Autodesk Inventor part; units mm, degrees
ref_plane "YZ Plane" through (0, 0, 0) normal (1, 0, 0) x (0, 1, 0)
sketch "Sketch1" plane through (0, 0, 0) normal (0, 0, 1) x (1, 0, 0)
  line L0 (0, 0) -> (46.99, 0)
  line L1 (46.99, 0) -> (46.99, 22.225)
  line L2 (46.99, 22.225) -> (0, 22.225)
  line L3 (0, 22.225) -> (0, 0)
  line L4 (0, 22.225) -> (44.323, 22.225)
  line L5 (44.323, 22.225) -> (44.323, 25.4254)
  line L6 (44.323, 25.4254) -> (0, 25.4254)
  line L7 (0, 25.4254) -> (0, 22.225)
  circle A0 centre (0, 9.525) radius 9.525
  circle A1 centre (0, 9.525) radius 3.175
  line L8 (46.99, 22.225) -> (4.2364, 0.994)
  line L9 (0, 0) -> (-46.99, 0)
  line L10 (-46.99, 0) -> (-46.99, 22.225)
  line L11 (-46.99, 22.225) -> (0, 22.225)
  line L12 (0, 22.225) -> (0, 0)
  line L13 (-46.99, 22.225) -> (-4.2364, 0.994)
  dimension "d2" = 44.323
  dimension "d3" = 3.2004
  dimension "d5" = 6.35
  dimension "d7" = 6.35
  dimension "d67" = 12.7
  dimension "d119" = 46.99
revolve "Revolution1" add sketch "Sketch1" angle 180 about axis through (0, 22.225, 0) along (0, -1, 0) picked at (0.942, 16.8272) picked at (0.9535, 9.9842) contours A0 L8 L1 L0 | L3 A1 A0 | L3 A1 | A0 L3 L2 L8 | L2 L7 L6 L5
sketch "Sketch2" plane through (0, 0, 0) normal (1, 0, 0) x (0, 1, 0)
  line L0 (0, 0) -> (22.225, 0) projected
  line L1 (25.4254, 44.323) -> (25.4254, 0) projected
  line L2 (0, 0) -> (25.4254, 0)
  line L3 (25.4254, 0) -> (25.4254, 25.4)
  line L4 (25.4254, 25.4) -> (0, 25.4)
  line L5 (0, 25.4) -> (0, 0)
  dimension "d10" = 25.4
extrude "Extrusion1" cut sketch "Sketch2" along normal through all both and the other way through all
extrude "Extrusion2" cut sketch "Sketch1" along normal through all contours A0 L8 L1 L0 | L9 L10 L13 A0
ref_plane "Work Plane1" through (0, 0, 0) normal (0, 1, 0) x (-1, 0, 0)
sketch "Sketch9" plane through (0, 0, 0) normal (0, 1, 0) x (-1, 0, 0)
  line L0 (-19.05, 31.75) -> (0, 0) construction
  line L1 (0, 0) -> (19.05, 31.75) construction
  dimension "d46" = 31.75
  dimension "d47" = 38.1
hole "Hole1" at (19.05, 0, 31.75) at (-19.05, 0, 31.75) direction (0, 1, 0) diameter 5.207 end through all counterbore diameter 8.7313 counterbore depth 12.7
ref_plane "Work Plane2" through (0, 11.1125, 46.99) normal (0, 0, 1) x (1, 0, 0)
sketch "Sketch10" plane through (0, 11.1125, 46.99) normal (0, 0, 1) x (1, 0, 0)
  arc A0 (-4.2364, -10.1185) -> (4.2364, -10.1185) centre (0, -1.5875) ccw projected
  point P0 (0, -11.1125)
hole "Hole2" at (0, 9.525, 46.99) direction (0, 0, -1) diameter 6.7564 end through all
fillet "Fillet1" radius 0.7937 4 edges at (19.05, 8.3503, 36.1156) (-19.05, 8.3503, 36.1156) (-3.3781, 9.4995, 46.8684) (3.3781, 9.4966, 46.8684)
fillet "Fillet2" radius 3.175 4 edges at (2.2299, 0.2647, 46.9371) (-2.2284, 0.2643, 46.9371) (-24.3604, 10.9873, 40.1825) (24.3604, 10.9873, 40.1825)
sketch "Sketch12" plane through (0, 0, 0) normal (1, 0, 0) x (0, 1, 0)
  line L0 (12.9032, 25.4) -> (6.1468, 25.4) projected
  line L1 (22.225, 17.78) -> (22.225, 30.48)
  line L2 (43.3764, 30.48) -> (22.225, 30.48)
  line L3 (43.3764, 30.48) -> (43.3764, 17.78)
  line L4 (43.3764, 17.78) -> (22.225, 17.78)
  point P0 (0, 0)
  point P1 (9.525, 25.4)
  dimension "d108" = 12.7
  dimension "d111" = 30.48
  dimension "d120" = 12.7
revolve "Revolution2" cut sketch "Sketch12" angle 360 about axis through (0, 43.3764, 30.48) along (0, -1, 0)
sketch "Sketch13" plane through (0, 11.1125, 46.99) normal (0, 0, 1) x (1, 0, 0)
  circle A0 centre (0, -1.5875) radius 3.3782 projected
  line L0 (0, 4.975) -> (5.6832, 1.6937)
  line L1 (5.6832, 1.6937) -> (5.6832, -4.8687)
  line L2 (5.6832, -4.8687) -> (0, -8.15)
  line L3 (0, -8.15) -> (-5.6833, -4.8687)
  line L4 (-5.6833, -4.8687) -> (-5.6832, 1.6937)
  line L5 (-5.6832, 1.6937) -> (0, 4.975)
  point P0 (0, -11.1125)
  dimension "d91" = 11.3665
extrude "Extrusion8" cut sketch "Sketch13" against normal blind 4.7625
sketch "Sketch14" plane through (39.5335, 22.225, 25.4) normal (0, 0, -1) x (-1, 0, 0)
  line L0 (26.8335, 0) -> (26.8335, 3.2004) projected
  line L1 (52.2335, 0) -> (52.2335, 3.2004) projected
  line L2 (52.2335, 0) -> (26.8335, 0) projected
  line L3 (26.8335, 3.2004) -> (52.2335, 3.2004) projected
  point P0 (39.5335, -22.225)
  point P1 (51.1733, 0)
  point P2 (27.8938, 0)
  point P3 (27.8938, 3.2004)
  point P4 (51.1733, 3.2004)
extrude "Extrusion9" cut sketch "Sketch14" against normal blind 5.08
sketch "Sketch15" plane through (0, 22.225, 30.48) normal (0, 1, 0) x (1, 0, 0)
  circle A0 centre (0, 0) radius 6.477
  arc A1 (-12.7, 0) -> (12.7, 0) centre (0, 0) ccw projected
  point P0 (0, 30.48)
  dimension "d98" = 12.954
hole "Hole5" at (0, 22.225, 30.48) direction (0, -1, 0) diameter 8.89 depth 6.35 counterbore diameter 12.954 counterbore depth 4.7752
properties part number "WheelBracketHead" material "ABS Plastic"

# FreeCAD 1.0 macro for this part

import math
import FreeCAD as App
import Part
import Sketcher
Q = App.Units.Quantity


def edges_at(feature, points):
    """Names of the edges that pass closest to the given points."""
    edges = feature.Shape.Edges
    near = lambda p: min(range(len(edges)), key=lambda i: edges[i].distToShape(Part.Vertex(*p))[0])
    return sorted({f"Edge{near(p) + 1}" for p in points})

doc = App.newDocument("Part")
params = doc.addObject("Spreadsheet::Sheet", "Params")
for row, (alias, value) in enumerate([
    ("sketch1_width", "1.85 in"),
    ("sketch1_width2", "1.745 in"),
    ("sketch1_height", "0.126 in"),
    ("sketch1_height2", "0.875 in"),
    ("revolution_angle", "180 deg"),
    ("sketch2_height", "1 in"),
    ("sketch2_width", "1.001 in"),
    ("sketch3_width", "1.85 in"),
    ("sketch3_radius", "0.375 in"),
    ("sketch4_diameter", "0.205 in"),
    ("hole_diameter", "0.205 in"),
    ("hole_cbore_diameter", "0.343752 in"),
    ("hole_cbore_depth", "0.5 in"),
    ("sketch5_diameter", "0.266 in"),
    ("hole2_diameter", "0.266 in"),
    ("fillet_radius", "0.031248 in"),
    ("fillet2_radius", "0.125 in"),
    ("sketch6_height", "0.5 in"),
    ("groove_angle", "360 deg"),
    ("sketch7_diameter", "0.266 in"),
    ("pocket3_length", "0.1875 in"),
    ("sketch8_width", "1 in"),
    ("sketch8_height", "0.126 in"),
    ("pocket4_length", "0.2 in"),
    ("sketch9_diameter", "0.35 in"),
    ("hole3_diameter", "0.35 in"),
    ("hole3_depth", "0.25 in"),
    ("hole3_cbore_diameter", "0.51 in"),
    ("hole3_cbore_depth", "0.188 in"),
], start=1):
    params.set(f"A{row}", alias)
    params.set(f"B{row}", "=" + value)
    params.setAlias(f"B{row}", alias)

body = doc.addObject("PartDesign::Body", "Body")

# Sketch on XY plane
sketch1 = doc.addObject("Sketcher::SketchObject", "Sketch")
body.addObject(sketch1)
sketch1.AttachmentSupport = (doc.XY_Plane, [""])
sketch1.MapMode = "FlatFace"
sketch1.addGeometry([
    Part.LineSegment(App.Vector(47, 0, 0), App.Vector(47, 22.2, 0)),  # 0
    Part.LineSegment(App.Vector(47, 22.2, 0), App.Vector(44.3, 22.2, 0)),  # 1
    Part.LineSegment(App.Vector(44.3, 22.2, 0), App.Vector(44.3, 25.4, 0)),  # 2
    Part.LineSegment(App.Vector(44.3, 25.4, 0), App.Vector(0, 25.4, 0)),  # 3
    Part.LineSegment(App.Vector(0, 25.4, 0), App.Vector(0, 0, 0)),  # 4
    Part.LineSegment(App.Vector(0, 0, 0), App.Vector(47, 0, 0)),  # 5
], False)
sketch1.addConstraint([
    Sketcher.Constraint("Coincident", 0, 2, 1, 1),
    Sketcher.Constraint("Coincident", 1, 2, 2, 1),
    Sketcher.Constraint("Coincident", 2, 2, 3, 1),
    Sketcher.Constraint("Coincident", 3, 2, 4, 1),
    Sketcher.Constraint("Coincident", 4, 2, 5, 1),
    Sketcher.Constraint("Coincident", 5, 2, 0, 1),
    Sketcher.Constraint("Vertical", 0),
    Sketcher.Constraint("Horizontal", 1),
    Sketcher.Constraint("Vertical", 2),
    Sketcher.Constraint("Horizontal", 3),
    Sketcher.Constraint("Vertical", 4),
    Sketcher.Constraint("Horizontal", 5),
    Sketcher.Constraint("Coincident", 4, 2, -1, 1),
    Sketcher.Constraint("DistanceX", 5, 1, 5, 2, Q("1.85 in")),
    Sketcher.Constraint("DistanceX", 3, 2, 3, 1, Q("1.745 in")),
    Sketcher.Constraint("DistanceY", 2, 1, 2, 2, Q("0.126 in")),
    Sketcher.Constraint("DistanceY", 0, 1, 0, 2, Q("0.875 in")),
])
sketch1.setExpression("Constraints[13]", "Params.sketch1_width")
sketch1.setExpression("Constraints[14]", "Params.sketch1_width2")
sketch1.setExpression("Constraints[15]", "Params.sketch1_height")
sketch1.setExpression("Constraints[16]", "Params.sketch1_height2")
revolution = doc.addObject("PartDesign::Revolution", "Revolution")
body.addObject(revolution)
revolution.Profile = sketch1
revolution.ReferenceAxis = (sketch1, ["V_Axis"])
revolution.setExpression("Angle", "Params.revolution_angle")
revolution.Reversed = True

# Sketch on YZ plane
sketch2 = doc.addObject("Sketcher::SketchObject", "Sketch001")
body.addObject(sketch2)
sketch2.AttachmentSupport = (doc.YZ_Plane, [""])
sketch2.MapMode = "FlatFace"
sketch2.addGeometry([
    Part.LineSegment(App.Vector(0, 25, 0), App.Vector(0, 0, 0)),
    Part.LineSegment(App.Vector(0, 0, 0), App.Vector(25, 0, 0)),
    Part.LineSegment(App.Vector(25, 0, 0), App.Vector(25, 25, 0)),
    Part.LineSegment(App.Vector(25, 25, 0), App.Vector(0, 25, 0)),
], False)
sketch2.addConstraint([
    Sketcher.Constraint("Coincident", 0, 2, 1, 1),
    Sketcher.Constraint("Coincident", 1, 2, 2, 1),
    Sketcher.Constraint("Coincident", 2, 2, 3, 1),
    Sketcher.Constraint("Coincident", 3, 2, 0, 1),
    Sketcher.Constraint("Vertical", 0),
    Sketcher.Constraint("Horizontal", 1),
    Sketcher.Constraint("Vertical", 2),
    Sketcher.Constraint("Horizontal", 3),
    Sketcher.Constraint("Coincident", 0, 2, -1, 1),
    Sketcher.Constraint("DistanceY", 0, 2, 0, 1, Q("1 in")),
    Sketcher.Constraint("DistanceX", 1, 1, 1, 2, Q("1.001 in")),
])
sketch2.setExpression("Constraints[9]", "Params.sketch2_height")
sketch2.setExpression("Constraints[10]", "Params.sketch2_width")
pocket1 = doc.addObject("PartDesign::Pocket", "Pocket")
body.addObject(pocket1)
pocket1.Profile = sketch2
pocket1.Type = "ThroughAll"
pocket1.Midplane = True

# Sketch on XY plane
sketch3 = doc.addObject("Sketcher::SketchObject", "Sketch002")
body.addObject(sketch3)
sketch3.AttachmentSupport = (doc.XY_Plane, [""])
sketch3.MapMode = "FlatFace"
sketch3.addGeometry([
    Part.ArcOfCircle(Part.Circle(App.Vector(0, 9.5, 0), App.Vector(0, 0, 1), 9.5), math.radians(-90), math.radians(-64)),  # 0
    Part.LineSegment(App.Vector(0, 0, 0), App.Vector(47, 0, 0)),  # 1
    Part.LineSegment(App.Vector(47, 0, 0), App.Vector(47, 22.2, 0)),  # 2
    Part.LineSegment(App.Vector(47, 22.2, 0), App.Vector(4.2, 1, 0)),  # 3
    Part.LineSegment(App.Vector(-47, 0, 0), App.Vector(0, 0, 0)),  # 4
    Part.ArcOfCircle(Part.Circle(App.Vector(0, 9.5, 0), App.Vector(0, 0, 1), 9.5), math.radians(-116), math.radians(-90)),  # 5
    Part.LineSegment(App.Vector(-4.2, 1, 0), App.Vector(-47, 22.2, 0)),  # 6
    Part.LineSegment(App.Vector(-47, 22.2, 0), App.Vector(-47, 0, 0)),  # 7
], False)
sketch3.addConstraint([
    Sketcher.Constraint("Tangent", 0, 1, 1, 1),
    Sketcher.Constraint("Coincident", 1, 2, 2, 1),
    Sketcher.Constraint("Coincident", 2, 2, 3, 1),
    Sketcher.Constraint("Tangent", 3, 2, 0, 2),
    Sketcher.Constraint("Tangent", 4, 2, 5, 2),
    Sketcher.Constraint("Tangent", 5, 1, 6, 1),
    Sketcher.Constraint("Coincident", 6, 2, 7, 1),
    Sketcher.Constraint("Coincident", 7, 2, 4, 1),
    Sketcher.Constraint("Horizontal", 1),
    Sketcher.Constraint("Vertical", 2),
    Sketcher.Constraint("Horizontal", 4),
    Sketcher.Constraint("Vertical", 7),
    Sketcher.Constraint("Coincident", 0, 1, -1, 1),
    Sketcher.Constraint("Coincident", 4, 2, -1, 1),
    Sketcher.Constraint("Equal", 0, 5),
    Sketcher.Constraint("Symmetric", 2, 2, 6, 2, -2),
    Sketcher.Constraint("DistanceX", 1, 1, 1, 2, Q("1.85 in")),
    Sketcher.Constraint("DistanceY", 0, 3, 2, 2, Q("0.5 in")),
    Sketcher.Constraint("Radius", 0, Q("0.375 in")),
])
sketch3.setExpression("Constraints[16]", "Params.sketch3_width")
sketch3.setExpression("Constraints[18]", "Params.sketch3_radius")
pocket2 = doc.addObject("PartDesign::Pocket", "Pocket001")
body.addObject(pocket2)
pocket2.Profile = sketch3
pocket2.Type = "ThroughAll"
pocket2.Reversed = True

# Sketch on XZ plane
sketch4 = doc.addObject("Sketcher::SketchObject", "Sketch003")
body.addObject(sketch4)
sketch4.AttachmentSupport = (doc.XZ_Plane, [""])
sketch4.MapMode = "FlatFace"
sketch4.addGeometry([
    Part.Circle(App.Vector(19.1, 31.8, 0), App.Vector(0, 0, 1), 2.6),
    Part.Circle(App.Vector(-19.1, 31.8, 0), App.Vector(0, 0, 1), 2.6),
], False)
sketch4.addConstraint([
    Sketcher.Constraint("Equal", 0, 1),
    Sketcher.Constraint("Symmetric", 0, 3, 1, 3, -2),
    Sketcher.Constraint("Diameter", 0, Q("0.205 in")),
    Sketcher.Constraint("DistanceX", 1, 3, 0, 3, Q("1.5 in")),
    Sketcher.Constraint("DistanceY", -1, 1, 0, 3, Q("1.25 in")),
])
sketch4.setExpression("Constraints[2]", "Params.sketch4_diameter")
doc.recompute()
hole = doc.addObject("PartDesign::Hole", "Hole")
body.addObject(hole)
hole.Profile = sketch4
hole.ThreadType = "None"
hole.setExpression("Diameter", "Params.hole_diameter")
hole.DepthType = "ThroughAll"
hole.HoleCutType = "Counterbore"
hole.setExpression("HoleCutDiameter", "Params.hole_cbore_diameter")
hole.setExpression("HoleCutDepth", "Params.hole_cbore_depth")

# Sketch on XY plane
sketch5 = doc.addObject("Sketcher::SketchObject", "Sketch004")
body.addObject(sketch5)
sketch5.AttachmentSupport = (doc.XY_Plane, [""])
sketch5.MapMode = "FlatFace"
sketch5.AttachmentOffset = App.Placement(App.Vector(0, 0, 1.85 * 25.4), App.Rotation())
sketch5.addGeometry(Part.Circle(App.Vector(0, 9.5, 0), App.Vector(0, 0, 1), 3.4), False)
sketch5.addConstraint([
    Sketcher.Constraint("PointOnObject", 0, 3, -2),
    Sketcher.Constraint("Diameter", 0, Q("0.266 in")),
    Sketcher.Constraint("DistanceY", -1, 1, 0, 3, Q("0.375 in")),
])
sketch5.setExpression("Constraints[1]", "Params.sketch5_diameter")
doc.recompute()
hole2 = doc.addObject("PartDesign::Hole", "Hole001")
body.addObject(hole2)
hole2.Profile = sketch5
hole2.ThreadType = "None"
hole2.setExpression("Diameter", "Params.hole2_diameter")
hole2.DepthType = "ThroughAll"
doc.recompute()

fillet = doc.addObject("PartDesign::Fillet", "Fillet")
body.addObject(fillet)
fillet.Base = (hole2, edges_at(hole2, [
    (19.05, 8.35, 36.116),
    (-19.05, 8.35, 36.116),
    (-3.378, 9.499, 46.868),
    (3.378, 9.497, 46.868),
]))
fillet.setExpression("Radius", "Params.fillet_radius")
doc.recompute()

fillet2 = doc.addObject("PartDesign::Fillet", "Fillet001")
body.addObject(fillet2)
fillet2.Base = (fillet, edges_at(fillet, [
    (2.23, 0.265, 46.937),
    (-2.228, 0.264, 46.937),
    (-24.36, 10.987, 40.182),
    (24.36, 10.987, 40.182),
]))
fillet2.setExpression("Radius", "Params.fillet2_radius")

# Sketch on YZ plane
sketch6 = doc.addObject("Sketcher::SketchObject", "Sketch005")
body.addObject(sketch6)
sketch6.AttachmentSupport = (doc.YZ_Plane, [""])
sketch6.MapMode = "FlatFace"
sketch6.addGeometry([
    Part.LineSegment(App.Vector(22, 30, 0), App.Vector(22, 18, 0)),
    Part.LineSegment(App.Vector(22, 18, 0), App.Vector(43, 18, 0)),
    Part.LineSegment(App.Vector(43, 18, 0), App.Vector(43, 30, 0)),
    Part.LineSegment(App.Vector(43, 30, 0), App.Vector(22, 30, 0)),
], False)
sketch6.addGeometry(Part.LineSegment(App.Vector(43, 30, 0), App.Vector(22, 30, 0)), True)  # axis
sketch6.addConstraint([
    Sketcher.Constraint("Coincident", 0, 2, 1, 1),
    Sketcher.Constraint("Coincident", 1, 2, 2, 1),
    Sketcher.Constraint("Coincident", 2, 2, 3, 1),
    Sketcher.Constraint("Coincident", 3, 2, 0, 1),
    Sketcher.Constraint("Vertical", 0),
    Sketcher.Constraint("Horizontal", 1),
    Sketcher.Constraint("Vertical", 2),
    Sketcher.Constraint("Horizontal", 3),
    Sketcher.Constraint("Horizontal", 4),
    Sketcher.Constraint("Coincident", 4, 1, 2, 2),
    Sketcher.Constraint("Vertical", 0, 2, 4, 2),
    Sketcher.Constraint("DistanceY", 0, 2, 0, 1, Q("0.5 in")),
    Sketcher.Constraint("DistanceY", -1, 1, 2, 2, Q("1.2 in")),
    Sketcher.Constraint("DistanceX", -1, 1, 0, 2, Q("0.875 in")),
    Sketcher.Constraint("DistanceX", 1, 1, 1, 2, Q("21.1514 mm")),
])
sketch6.setExpression("Constraints[11]", "Params.sketch6_height")
groove = doc.addObject("PartDesign::Groove", "Groove")
body.addObject(groove)
groove.Profile = sketch6
groove.ReferenceAxis = (sketch6, ["Axis0"])
groove.setExpression("Angle", "Params.groove_angle")

# Sketch on XY plane
sketch7 = doc.addObject("Sketcher::SketchObject", "Sketch006")
body.addObject(sketch7)
sketch7.AttachmentSupport = (doc.XY_Plane, [""])
sketch7.MapMode = "FlatFace"
sketch7.AttachmentOffset = App.Placement(App.Vector(0, 0, 1.85 * 25.4), App.Rotation())
sketch7.addGeometry([
    Part.LineSegment(App.Vector(5.7, 12.8, 0), App.Vector(0, 16.1, 0)),  # 0
    Part.LineSegment(App.Vector(0, 16.1, 0), App.Vector(-5.7, 12.8, 0)),  # 1
    Part.LineSegment(App.Vector(-5.7, 12.8, 0), App.Vector(-5.7, 6.2, 0)),  # 2
    Part.LineSegment(App.Vector(-5.7, 6.2, 0), App.Vector(0, 3, 0)),  # 3
    Part.LineSegment(App.Vector(0, 3, 0), App.Vector(5.7, 6.2, 0)),  # 4
    Part.LineSegment(App.Vector(5.7, 6.2, 0), App.Vector(5.7, 12.8, 0)),  # 5
    Part.Circle(App.Vector(0, 9.5, 0), App.Vector(0, 0, 1), 3.4),  # 6
], False)
sketch7.addConstraint([
    Sketcher.Constraint("Coincident", 0, 2, 1, 1),
    Sketcher.Constraint("Coincident", 1, 2, 2, 1),
    Sketcher.Constraint("Coincident", 2, 2, 3, 1),
    Sketcher.Constraint("Coincident", 3, 2, 4, 1),
    Sketcher.Constraint("Coincident", 4, 2, 5, 1),
    Sketcher.Constraint("Coincident", 5, 2, 0, 1),
    Sketcher.Constraint("Vertical", 2),
    Sketcher.Constraint("Vertical", 5),
    Sketcher.Constraint("Symmetric", 2, 2, 4, 2, -2),
    Sketcher.Constraint("PointOnObject", 6, 3, -2),
    Sketcher.Constraint("PointOnObject", 0, 2, -2),
    Sketcher.Constraint("PointOnObject", 3, 2, -2),
    Sketcher.Constraint("Parallel", 0, 3),
    Sketcher.Constraint("Parallel", 1, 4),
    Sketcher.Constraint("Diameter", 6, Q("0.266 in")),
    Sketcher.Constraint("Angle", 0, Q("149.9992 deg")),
    Sketcher.Constraint("DistanceX", 2, 2, 4, 2, Q("0.4475 in")),
    Sketcher.Constraint("DistanceY", -1, 1, 6, 3, Q("0.375 in")),
    Sketcher.Constraint("DistanceY", 2, 2, 2, 1, Q("6.5624 mm")),
    Sketcher.Constraint("DistanceY", -1, 1, 0, 2, Q("16.0875 mm")),
])
sketch7.setExpression("Constraints[14]", "Params.sketch7_diameter")
pocket3 = doc.addObject("PartDesign::Pocket", "Pocket002")
body.addObject(pocket3)
pocket3.Profile = sketch7
pocket3.setExpression("Length", "Params.pocket3_length")

# Sketch on XY plane
sketch8 = doc.addObject("Sketcher::SketchObject", "Sketch007")
body.addObject(sketch8)
sketch8.AttachmentSupport = (doc.XY_Plane, [""])
sketch8.MapMode = "FlatFace"
sketch8.AttachmentOffset = App.Placement(App.Vector(0, 0, 1 * 25.4), App.Rotation())
sketch8.addGeometry([
    Part.LineSegment(App.Vector(12.7, 25.4, 0), App.Vector(12.7, 22.2, 0)),
    Part.LineSegment(App.Vector(12.7, 22.2, 0), App.Vector(-12.7, 22.2, 0)),
    Part.LineSegment(App.Vector(-12.7, 22.2, 0), App.Vector(-12.7, 25.4, 0)),
    Part.LineSegment(App.Vector(-12.7, 25.4, 0), App.Vector(12.7, 25.4, 0)),
], False)
sketch8.addConstraint([
    Sketcher.Constraint("Coincident", 0, 2, 1, 1),
    Sketcher.Constraint("Coincident", 1, 2, 2, 1),
    Sketcher.Constraint("Coincident", 2, 2, 3, 1),
    Sketcher.Constraint("Coincident", 3, 2, 0, 1),
    Sketcher.Constraint("Vertical", 0),
    Sketcher.Constraint("Horizontal", 1),
    Sketcher.Constraint("Vertical", 2),
    Sketcher.Constraint("Horizontal", 3),
    Sketcher.Constraint("DistanceX", 1, 2, 1, 1, Q("1 in")),
    Sketcher.Constraint("DistanceX", -1, 1, 0, 2, Q("0.5 in")),
    Sketcher.Constraint("DistanceY", 0, 2, 0, 1, Q("0.126 in")),
    Sketcher.Constraint("DistanceY", -1, 1, 0, 2, Q("0.875 in")),
])
sketch8.setExpression("Constraints[8]", "Params.sketch8_width")
sketch8.setExpression("Constraints[10]", "Params.sketch8_height")
pocket4 = doc.addObject("PartDesign::Pocket", "Pocket003")
body.addObject(pocket4)
pocket4.Profile = sketch8
pocket4.setExpression("Length", "Params.pocket4_length")
pocket4.Reversed = True

# Sketch on XZ plane
sketch9 = doc.addObject("Sketcher::SketchObject", "Sketch008")
body.addObject(sketch9)
sketch9.AttachmentSupport = (doc.XZ_Plane, [""])
sketch9.MapMode = "FlatFace"
sketch9.AttachmentOffset = App.Placement(App.Vector(0, 0, -0.875 * 25.4), App.Rotation())
sketch9.addGeometry(Part.Circle(App.Vector(0, 30.5, 0), App.Vector(0, 0, 1), 4.4), False)
sketch9.addConstraint([
    Sketcher.Constraint("PointOnObject", 0, 3, -2),
    Sketcher.Constraint("Diameter", 0, Q("0.35 in")),
    Sketcher.Constraint("DistanceY", -1, 1, 0, 3, Q("1.2 in")),
])
sketch9.setExpression("Constraints[1]", "Params.sketch9_diameter")
doc.recompute()
hole3 = doc.addObject("PartDesign::Hole", "Hole002")
body.addObject(hole3)
hole3.Profile = sketch9
hole3.ThreadType = "None"
hole3.setExpression("Diameter", "Params.hole3_diameter")
hole3.DepthType = "Dimension"
hole3.setExpression("Depth", "Params.hole3_depth")
hole3.DrillPoint = "Flat"
hole3.HoleCutType = "Counterbore"
hole3.setExpression("HoleCutDiameter", "Params.hole3_cbore_diameter")
hole3.setExpression("HoleCutDepth", "Params.hole3_cbore_depth")
hole3.Reversed = True

doc.recompute()
